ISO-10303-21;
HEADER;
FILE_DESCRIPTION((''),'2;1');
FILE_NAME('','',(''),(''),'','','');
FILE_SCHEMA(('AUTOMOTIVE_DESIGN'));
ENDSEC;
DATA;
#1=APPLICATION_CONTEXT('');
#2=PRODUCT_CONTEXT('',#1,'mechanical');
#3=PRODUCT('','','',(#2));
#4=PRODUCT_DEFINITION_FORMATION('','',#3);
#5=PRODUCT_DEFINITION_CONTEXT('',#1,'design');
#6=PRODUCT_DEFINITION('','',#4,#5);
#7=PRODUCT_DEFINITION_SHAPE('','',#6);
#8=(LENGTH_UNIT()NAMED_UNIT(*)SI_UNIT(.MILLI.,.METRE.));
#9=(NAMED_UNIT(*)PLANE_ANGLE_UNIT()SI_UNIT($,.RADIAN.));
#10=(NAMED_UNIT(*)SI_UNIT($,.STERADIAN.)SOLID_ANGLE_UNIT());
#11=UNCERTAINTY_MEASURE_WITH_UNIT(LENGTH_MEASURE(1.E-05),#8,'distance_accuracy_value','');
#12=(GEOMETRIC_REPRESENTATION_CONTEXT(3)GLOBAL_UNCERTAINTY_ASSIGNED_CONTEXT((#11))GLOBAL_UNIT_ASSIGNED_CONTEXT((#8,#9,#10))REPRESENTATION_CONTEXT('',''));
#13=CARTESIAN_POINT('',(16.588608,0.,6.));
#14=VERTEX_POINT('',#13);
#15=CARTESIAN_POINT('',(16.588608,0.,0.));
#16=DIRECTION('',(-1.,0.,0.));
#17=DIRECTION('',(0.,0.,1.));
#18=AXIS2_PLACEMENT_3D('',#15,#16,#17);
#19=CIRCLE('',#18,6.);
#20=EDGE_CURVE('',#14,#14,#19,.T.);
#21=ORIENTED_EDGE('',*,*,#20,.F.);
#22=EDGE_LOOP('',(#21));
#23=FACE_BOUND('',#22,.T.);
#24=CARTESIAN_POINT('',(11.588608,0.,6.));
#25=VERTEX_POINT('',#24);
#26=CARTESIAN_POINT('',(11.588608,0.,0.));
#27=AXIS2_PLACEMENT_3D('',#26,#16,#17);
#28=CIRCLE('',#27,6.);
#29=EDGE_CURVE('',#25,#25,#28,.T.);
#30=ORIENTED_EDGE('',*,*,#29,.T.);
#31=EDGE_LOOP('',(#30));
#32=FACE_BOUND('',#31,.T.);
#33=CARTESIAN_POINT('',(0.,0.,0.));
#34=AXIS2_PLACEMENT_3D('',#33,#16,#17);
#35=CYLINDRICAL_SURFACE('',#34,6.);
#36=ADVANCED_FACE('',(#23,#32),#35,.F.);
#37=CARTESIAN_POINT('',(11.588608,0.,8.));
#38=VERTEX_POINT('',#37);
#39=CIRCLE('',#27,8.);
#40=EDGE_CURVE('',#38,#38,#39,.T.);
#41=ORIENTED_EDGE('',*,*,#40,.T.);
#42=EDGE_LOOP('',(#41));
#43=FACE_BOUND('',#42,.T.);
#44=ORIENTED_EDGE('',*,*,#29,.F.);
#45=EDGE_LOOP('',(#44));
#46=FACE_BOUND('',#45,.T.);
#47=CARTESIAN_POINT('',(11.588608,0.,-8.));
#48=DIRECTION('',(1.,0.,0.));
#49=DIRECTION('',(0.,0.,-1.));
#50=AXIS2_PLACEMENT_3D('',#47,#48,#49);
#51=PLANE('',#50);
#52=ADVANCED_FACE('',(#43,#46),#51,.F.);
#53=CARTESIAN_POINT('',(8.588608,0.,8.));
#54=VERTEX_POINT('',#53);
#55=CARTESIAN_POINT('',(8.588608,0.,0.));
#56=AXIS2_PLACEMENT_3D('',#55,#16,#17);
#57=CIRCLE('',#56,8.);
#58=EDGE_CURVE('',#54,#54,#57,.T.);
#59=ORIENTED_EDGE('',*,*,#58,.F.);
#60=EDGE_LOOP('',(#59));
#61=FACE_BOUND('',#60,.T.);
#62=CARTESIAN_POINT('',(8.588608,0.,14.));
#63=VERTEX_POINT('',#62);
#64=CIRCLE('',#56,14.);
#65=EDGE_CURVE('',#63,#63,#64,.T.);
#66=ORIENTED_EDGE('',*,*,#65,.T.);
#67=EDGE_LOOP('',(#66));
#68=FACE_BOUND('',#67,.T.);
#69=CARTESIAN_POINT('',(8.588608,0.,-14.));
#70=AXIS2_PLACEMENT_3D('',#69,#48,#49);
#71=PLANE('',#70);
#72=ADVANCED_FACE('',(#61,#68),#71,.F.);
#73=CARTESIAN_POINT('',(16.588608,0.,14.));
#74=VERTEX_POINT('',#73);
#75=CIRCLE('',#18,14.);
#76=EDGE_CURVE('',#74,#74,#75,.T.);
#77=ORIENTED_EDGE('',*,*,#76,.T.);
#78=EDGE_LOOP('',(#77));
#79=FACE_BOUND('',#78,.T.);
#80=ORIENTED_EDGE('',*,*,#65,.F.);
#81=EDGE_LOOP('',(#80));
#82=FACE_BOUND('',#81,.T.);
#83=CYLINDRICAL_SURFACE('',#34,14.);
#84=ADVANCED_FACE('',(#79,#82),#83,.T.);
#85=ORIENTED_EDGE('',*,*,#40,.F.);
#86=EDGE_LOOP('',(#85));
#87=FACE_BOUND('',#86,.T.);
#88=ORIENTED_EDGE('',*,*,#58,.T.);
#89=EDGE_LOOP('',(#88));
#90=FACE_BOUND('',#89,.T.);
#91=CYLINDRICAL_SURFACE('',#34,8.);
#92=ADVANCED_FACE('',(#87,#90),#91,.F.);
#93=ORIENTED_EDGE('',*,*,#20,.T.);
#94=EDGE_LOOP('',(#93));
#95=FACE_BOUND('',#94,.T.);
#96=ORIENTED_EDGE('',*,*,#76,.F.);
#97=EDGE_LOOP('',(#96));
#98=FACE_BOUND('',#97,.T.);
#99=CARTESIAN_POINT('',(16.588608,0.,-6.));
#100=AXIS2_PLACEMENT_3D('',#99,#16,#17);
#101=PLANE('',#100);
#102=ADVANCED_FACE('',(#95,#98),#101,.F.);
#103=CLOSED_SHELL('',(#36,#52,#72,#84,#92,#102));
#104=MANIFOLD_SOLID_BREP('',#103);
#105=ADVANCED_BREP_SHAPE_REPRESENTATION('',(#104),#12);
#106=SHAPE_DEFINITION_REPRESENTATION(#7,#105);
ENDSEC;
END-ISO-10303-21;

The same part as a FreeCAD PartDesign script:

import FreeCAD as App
import Part
import Sketcher
from FreeCAD import Vector
Q = App.Units.Quantity


def add_polygon(sketch, points):
    """Adds a closed chain of lines whose ends are joined by coincident constraints."""
    first, n = sketch.GeometryCount, len(points)
    for a, b in zip(points, points[1:] + points[:1]):
        sketch.addGeometry(Part.LineSegment(App.Vector(*a, 0), App.Vector(*b, 0)), False)
    for i in range(n):
        sketch.addConstraint(Sketcher.Constraint("Coincident", first + i, 2, first + (i + 1) % n, 1))

doc = App.newDocument("Part")
body = doc.addObject("PartDesign::Body", "Body")

# Sketch on XZ plane
sketch1 = body.newObject("Sketcher::SketchObject", "Sketch")
sketch1.AttachmentSupport = (doc.getObject("XZ_Plane"), [""])
sketch1.MapMode = "FlatFace"
add_polygon(sketch1, [(8.6, -14), (8.6, -8), (11.6, -8), (11.6, -6), (16.6, -6), (16.6, -14)])  # lines 0-5
sketch1.addConstraint([
    Sketcher.Constraint("Vertical", 0),
    Sketcher.Constraint("Horizontal", 1),
    Sketcher.Constraint("Vertical", 2),
    Sketcher.Constraint("Horizontal", 3),
    Sketcher.Constraint("Vertical", 4),
    Sketcher.Constraint("Horizontal", 5),
    Sketcher.Constraint("Equal", 5, 4),
    Sketcher.Constraint("DistanceX", 1, 1, 1, 2, Q("3 mm")),
    Sketcher.Constraint("DistanceX", 3, 1, 3, 2, Q("5 mm")),
    Sketcher.Constraint("DistanceY", 0, 1, 0, 2, Q("6 mm")),
    Sketcher.Constraint("DistanceY", 0, 2, -1, 1, Q("8 mm")),
    Sketcher.Constraint("DistanceX", -1, 1, 0, 2, Q("8.588608 mm")),
])
revolution = body.newObject("PartDesign::Revolution", "Revolution")
revolution.Profile = sketch1
revolution.ReferenceAxis = (sketch1, ["H_Axis"])
revolution.Angle = 360

doc.recompute()
